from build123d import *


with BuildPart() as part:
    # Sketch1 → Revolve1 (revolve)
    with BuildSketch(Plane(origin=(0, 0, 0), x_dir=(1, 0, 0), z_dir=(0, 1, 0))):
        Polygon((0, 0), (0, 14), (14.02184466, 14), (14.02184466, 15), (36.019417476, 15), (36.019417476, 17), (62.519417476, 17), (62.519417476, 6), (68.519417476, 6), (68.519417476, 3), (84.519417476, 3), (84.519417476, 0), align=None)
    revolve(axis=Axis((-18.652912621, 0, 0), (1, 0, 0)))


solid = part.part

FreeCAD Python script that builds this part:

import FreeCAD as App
import Part
import Sketcher
from FreeCAD import Vector


def add_polygon(sketch, points):
    """Adds a closed chain of lines whose ends are joined by coincident constraints."""
    first, n = sketch.GeometryCount, len(points)
    for a, b in zip(points, points[1:] + points[:1]):
        sketch.addGeometry(Part.LineSegment(App.Vector(*a, 0), App.Vector(*b, 0)), False)
    for i in range(n):
        sketch.addConstraint(Sketcher.Constraint("Coincident", first + i, 2, first + (i + 1) % n, 1))

doc = App.newDocument("Part")
body = doc.addObject("PartDesign::Body", "Body")

# Sketch on XZ plane
sketch1 = body.newObject("Sketcher::SketchObject", "Sketch")
sketch1.AttachmentSupport = (doc.getObject("XZ_Plane"), [""])
sketch1.MapMode = "FlatFace"
add_polygon(sketch1, [(0, -14), (0, 0), (84.5, 0), (84.5, -3), (68.5, -3), (68.5, -6), (62.5, -6), (62.5, -17), (36, -17), (36, -15), (14, -15), (14, -14)])  # lines 0-11
sketch1.addConstraint(Sketcher.Constraint("Vertical", 0))
sketch1.addConstraint(Sketcher.Constraint("Horizontal", 1))
sketch1.addConstraint(Sketcher.Constraint("Vertical", 2))
sketch1.addConstraint(Sketcher.Constraint("Horizontal", 3))
sketch1.addConstraint(Sketcher.Constraint("Vertical", 4))
sketch1.addConstraint(Sketcher.Constraint("Horizontal", 5))
sketch1.addConstraint(Sketcher.Constraint("Vertical", 6))
sketch1.addConstraint(Sketcher.Constraint("Horizontal", 7))
sketch1.addConstraint(Sketcher.Constraint("Vertical", 8))
sketch1.addConstraint(Sketcher.Constraint("Horizontal", 9))
sketch1.addConstraint(Sketcher.Constraint("Vertical", 10))
sketch1.addConstraint(Sketcher.Constraint("Horizontal", 11))
sketch1.addConstraint(Sketcher.Constraint("Coincident", 0, 2, -1, 1))
sketch1.addConstraint(Sketcher.Constraint("Equal", 2, 4))
sketch1.addConstraint(Sketcher.Constraint("DistanceX", 3, 2, 3, 1, 16.0))
sketch1.addConstraint(Sketcher.Constraint("DistanceX", 5, 2, 5, 1, 6.0))
sketch1.addConstraint(Sketcher.Constraint("DistanceY", 0, 1, 0, 2, 14.0))
sketch1.addConstraint(Sketcher.Constraint("DistanceY", 2, 2, 2, 1, 3.0))
sketch1.addConstraint(Sketcher.Constraint("DistanceY", 6, 2, 6, 1, 11.0))
sketch1.addConstraint(Sketcher.Constraint("DistanceY", 8, 1, 8, 2, 2.0))
sketch1.addConstraint(Sketcher.Constraint("DistanceX", 7, 2, 7, 1, 26.5))
sketch1.addConstraint(Sketcher.Constraint("DistanceX", 1, 1, 1, 2, 84.519417))
sketch1.addConstraint(Sketcher.Constraint("DistanceX", 9, 2, 9, 1, 21.997573))
revolution = body.newObject("PartDesign::Revolution", "Revolution")
revolution.Profile = sketch1
revolution.ReferenceAxis = (sketch1, ["H_Axis"])
revolution.Angle = 360

doc.recompute()
